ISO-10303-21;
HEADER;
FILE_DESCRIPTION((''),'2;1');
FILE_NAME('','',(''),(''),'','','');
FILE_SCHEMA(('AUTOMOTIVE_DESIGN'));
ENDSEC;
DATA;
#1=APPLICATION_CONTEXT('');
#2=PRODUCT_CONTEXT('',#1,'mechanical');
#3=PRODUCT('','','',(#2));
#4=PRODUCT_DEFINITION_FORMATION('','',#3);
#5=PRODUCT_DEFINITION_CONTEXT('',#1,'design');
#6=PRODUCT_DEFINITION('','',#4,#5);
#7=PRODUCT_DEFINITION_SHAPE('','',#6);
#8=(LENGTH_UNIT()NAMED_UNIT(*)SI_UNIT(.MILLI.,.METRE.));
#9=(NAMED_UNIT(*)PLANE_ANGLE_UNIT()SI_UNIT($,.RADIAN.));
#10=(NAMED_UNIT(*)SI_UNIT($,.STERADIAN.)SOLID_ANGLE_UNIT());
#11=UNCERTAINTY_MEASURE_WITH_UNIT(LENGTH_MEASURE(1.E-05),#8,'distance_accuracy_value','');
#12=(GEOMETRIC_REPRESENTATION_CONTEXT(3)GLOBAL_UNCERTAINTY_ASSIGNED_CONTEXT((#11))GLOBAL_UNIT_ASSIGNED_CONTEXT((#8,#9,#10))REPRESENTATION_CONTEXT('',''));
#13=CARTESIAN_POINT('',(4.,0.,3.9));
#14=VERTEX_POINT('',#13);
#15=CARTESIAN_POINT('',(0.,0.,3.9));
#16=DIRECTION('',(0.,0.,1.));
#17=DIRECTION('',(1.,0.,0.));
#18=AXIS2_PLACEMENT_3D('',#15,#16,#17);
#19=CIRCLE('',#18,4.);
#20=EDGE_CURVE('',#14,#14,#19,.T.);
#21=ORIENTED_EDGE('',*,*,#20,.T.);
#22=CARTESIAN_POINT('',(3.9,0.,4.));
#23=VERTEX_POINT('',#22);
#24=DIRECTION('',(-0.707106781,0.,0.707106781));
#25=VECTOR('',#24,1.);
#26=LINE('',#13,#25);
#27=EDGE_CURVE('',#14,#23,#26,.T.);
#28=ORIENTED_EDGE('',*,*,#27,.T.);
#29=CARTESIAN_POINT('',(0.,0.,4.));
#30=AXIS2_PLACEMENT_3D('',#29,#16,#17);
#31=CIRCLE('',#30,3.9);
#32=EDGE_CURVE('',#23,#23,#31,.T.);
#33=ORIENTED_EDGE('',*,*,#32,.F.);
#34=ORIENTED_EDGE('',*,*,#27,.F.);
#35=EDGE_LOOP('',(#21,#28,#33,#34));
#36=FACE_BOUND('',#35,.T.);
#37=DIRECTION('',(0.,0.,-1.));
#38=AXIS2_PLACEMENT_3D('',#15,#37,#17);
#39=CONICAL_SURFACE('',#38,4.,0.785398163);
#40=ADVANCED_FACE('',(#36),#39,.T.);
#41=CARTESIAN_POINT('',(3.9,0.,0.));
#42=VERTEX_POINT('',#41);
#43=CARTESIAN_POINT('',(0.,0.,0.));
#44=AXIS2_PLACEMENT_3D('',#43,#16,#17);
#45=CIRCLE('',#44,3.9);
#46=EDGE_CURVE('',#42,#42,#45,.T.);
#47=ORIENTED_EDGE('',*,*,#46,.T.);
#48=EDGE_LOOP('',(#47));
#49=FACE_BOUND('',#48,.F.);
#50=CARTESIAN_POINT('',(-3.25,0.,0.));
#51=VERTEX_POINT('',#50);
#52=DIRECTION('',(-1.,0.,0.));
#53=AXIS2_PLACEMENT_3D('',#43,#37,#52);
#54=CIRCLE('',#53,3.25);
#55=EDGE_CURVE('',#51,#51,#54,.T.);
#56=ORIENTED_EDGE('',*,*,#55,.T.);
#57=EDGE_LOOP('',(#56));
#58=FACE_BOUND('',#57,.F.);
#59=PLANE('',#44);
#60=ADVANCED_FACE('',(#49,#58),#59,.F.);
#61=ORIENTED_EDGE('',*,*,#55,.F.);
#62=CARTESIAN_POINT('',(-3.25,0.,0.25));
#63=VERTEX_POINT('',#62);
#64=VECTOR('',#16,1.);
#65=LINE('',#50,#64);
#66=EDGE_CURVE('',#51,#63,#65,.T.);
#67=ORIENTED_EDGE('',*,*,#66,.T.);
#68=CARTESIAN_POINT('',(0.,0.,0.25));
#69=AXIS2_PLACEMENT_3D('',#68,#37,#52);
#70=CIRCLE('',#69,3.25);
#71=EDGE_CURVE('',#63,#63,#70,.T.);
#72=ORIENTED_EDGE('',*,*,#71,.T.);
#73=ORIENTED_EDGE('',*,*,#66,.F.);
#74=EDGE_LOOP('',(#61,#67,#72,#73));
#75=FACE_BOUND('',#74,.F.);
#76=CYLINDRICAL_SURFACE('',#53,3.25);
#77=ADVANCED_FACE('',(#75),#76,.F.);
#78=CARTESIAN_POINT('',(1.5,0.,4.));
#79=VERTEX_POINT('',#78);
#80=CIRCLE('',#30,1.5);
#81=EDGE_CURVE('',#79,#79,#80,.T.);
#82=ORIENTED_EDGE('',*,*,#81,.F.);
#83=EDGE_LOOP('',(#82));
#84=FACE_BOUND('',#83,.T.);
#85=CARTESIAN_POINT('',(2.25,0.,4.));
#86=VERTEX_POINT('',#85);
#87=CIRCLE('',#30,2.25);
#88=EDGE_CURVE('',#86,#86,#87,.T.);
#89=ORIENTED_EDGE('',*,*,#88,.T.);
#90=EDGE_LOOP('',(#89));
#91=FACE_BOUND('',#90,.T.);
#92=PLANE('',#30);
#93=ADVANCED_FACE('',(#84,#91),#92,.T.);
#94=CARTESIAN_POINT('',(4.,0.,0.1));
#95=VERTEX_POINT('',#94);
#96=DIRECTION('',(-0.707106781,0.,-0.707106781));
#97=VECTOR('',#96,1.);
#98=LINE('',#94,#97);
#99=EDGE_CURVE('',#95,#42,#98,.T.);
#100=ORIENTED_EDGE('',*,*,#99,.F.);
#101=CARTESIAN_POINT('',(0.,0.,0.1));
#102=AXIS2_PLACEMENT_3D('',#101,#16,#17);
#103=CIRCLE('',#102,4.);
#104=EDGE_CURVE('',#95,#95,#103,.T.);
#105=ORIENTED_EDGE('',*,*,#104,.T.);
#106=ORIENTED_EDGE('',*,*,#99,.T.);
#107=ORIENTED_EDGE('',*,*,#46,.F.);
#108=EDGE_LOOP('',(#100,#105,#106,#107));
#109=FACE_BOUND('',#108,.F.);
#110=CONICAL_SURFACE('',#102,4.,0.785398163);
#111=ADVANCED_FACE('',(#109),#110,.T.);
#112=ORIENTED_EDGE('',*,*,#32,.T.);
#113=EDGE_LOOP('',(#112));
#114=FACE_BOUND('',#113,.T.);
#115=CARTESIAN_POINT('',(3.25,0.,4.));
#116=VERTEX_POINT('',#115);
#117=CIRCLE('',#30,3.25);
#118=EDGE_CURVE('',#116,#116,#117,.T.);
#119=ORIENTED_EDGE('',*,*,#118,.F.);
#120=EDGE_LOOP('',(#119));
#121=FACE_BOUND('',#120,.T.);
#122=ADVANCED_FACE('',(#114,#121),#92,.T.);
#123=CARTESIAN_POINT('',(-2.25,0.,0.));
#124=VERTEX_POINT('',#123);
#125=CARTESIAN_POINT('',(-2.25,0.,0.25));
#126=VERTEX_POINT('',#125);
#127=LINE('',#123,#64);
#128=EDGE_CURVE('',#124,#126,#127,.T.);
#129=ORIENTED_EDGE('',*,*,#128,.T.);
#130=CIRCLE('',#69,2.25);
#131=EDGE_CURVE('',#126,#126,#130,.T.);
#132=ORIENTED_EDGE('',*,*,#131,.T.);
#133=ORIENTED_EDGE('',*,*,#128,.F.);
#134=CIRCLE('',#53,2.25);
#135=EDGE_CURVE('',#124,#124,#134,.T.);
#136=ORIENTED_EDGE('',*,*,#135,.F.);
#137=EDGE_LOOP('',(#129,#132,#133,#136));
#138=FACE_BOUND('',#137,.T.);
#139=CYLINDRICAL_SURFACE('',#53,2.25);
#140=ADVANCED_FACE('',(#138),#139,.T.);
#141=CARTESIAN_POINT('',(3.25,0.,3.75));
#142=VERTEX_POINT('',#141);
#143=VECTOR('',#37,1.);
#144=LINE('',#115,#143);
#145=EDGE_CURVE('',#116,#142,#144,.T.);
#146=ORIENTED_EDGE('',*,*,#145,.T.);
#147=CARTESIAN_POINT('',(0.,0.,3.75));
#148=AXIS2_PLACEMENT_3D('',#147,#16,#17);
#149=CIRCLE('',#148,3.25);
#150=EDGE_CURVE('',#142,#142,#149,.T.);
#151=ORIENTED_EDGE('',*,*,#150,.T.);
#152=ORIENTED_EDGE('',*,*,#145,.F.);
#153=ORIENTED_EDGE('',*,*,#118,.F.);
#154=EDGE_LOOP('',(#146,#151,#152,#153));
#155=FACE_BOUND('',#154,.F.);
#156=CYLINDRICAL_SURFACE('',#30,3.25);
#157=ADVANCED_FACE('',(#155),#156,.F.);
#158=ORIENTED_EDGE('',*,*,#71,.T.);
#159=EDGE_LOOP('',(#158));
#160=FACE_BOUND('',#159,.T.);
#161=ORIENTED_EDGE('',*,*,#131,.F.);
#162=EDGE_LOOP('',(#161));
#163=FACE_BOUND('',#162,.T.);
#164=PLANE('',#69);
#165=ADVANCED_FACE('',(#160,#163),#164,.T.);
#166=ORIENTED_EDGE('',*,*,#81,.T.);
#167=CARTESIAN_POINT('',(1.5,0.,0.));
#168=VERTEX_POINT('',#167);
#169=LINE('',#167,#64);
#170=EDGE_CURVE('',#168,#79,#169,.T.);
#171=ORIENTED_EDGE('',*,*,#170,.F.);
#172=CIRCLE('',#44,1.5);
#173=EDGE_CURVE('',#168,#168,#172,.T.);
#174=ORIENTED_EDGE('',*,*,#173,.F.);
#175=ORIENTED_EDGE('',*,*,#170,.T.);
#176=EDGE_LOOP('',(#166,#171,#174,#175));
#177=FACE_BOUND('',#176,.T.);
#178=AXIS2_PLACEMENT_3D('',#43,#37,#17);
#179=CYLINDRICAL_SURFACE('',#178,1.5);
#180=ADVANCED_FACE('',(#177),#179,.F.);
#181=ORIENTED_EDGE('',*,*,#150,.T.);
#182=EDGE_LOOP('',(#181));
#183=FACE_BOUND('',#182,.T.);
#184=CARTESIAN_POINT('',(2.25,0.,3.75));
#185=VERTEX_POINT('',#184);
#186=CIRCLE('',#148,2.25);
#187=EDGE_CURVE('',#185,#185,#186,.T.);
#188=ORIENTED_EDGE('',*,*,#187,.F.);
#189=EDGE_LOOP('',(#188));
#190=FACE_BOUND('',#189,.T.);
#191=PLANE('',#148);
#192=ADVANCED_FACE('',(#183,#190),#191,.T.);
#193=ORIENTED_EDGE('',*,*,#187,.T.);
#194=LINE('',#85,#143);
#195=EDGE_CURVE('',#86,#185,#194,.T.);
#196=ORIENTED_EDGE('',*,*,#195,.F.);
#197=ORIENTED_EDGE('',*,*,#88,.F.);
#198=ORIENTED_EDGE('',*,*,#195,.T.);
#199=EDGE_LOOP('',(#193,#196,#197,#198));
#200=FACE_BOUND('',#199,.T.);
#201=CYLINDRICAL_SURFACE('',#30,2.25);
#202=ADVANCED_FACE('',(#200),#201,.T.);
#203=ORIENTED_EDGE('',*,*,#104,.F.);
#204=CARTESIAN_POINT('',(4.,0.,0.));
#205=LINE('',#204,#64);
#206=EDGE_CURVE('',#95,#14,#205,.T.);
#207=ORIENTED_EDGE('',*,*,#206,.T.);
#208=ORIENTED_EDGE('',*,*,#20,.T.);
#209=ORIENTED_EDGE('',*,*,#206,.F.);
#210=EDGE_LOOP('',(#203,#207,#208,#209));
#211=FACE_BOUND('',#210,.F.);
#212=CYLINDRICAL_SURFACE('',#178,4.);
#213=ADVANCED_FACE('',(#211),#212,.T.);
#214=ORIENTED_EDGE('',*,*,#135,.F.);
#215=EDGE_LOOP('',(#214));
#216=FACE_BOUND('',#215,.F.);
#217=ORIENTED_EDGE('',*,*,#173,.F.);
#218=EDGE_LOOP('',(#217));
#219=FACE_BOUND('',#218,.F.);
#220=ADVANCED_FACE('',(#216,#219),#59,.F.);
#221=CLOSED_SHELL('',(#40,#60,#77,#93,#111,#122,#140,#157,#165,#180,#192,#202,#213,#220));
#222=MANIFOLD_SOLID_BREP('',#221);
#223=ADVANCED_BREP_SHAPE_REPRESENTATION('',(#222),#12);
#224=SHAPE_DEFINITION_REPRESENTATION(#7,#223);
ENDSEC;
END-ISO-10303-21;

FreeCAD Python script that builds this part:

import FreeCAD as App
import Part
import Sketcher
from FreeCAD import Vector
Q = App.Units.Quantity


def edges_at(feature, points):
    """Names of the edges that pass closest to the given points."""
    edges = feature.Shape.Edges
    near = lambda p: min(range(len(edges)), key=lambda i: edges[i].distToShape(Part.Vertex(*p))[0])
    return sorted({f"Edge{near(p) + 1}" for p in points})

doc = App.newDocument("Part")
body = doc.addObject("PartDesign::Body", "Body")

sketch1 = body.newObject("Sketcher::SketchObject", "Sketch")
sketch1.AttachmentSupport = (doc.getObject("XY_Plane"), [""])
sketch1.MapMode = "FlatFace"
sketch1.addGeometry([
    Part.Circle(Vector(0, 0, 0), Vector(0, 0, 1), 4),
    Part.Circle(Vector(0, 0, 0), Vector(0, 0, 1), 1.5),
], False)
sketch1.addConstraint([
    Sketcher.Constraint("Coincident", 0, 3, -1, 1),
    Sketcher.Constraint("Coincident", 1, 3, -1, 1),
    Sketcher.Constraint("Diameter", 0, Q("8 mm")),
    Sketcher.Constraint("Diameter", 1, Q("3 mm")),
])
pad1 = body.newObject("PartDesign::Pad", "Pad")
pad1.Profile = sketch1
pad1.Length = 4

sketch2 = body.newObject("Sketcher::SketchObject", "Sketch001")
sketch2.AttachmentSupport = (doc.getObject("XY_Plane"), [""])
sketch2.MapMode = "FlatFace"
sketch2.AttachmentOffset = App.Placement(Vector(0, 0, 4), App.Rotation())
sketch2.addGeometry([
    Part.Circle(Vector(0, 0, 0), Vector(0, 0, 1), 3.25),
    Part.Circle(Vector(0, 0, 0), Vector(0, 0, 1), 2.25),
], False)
sketch2.addConstraint([
    Sketcher.Constraint("Coincident", 0, 3, -1, 1),
    Sketcher.Constraint("Coincident", 1, 3, -1, 1),
    Sketcher.Constraint("Diameter", 0, Q("6.5 mm")),
    Sketcher.Constraint("Diameter", 1, Q("4.5 mm")),
])
pocket1 = body.newObject("PartDesign::Pocket", "Pocket")
pocket1.Profile = sketch2
pocket1.Length = 0.25

sketch3 = body.newObject("Sketcher::SketchObject", "Sketch002")
sketch3.AttachmentSupport = (doc.getObject("XY_Plane"), [""])
sketch3.MapMode = "FlatFace"
sketch3.addGeometry([
    Part.Circle(Vector(0, 0, 0), Vector(0, 0, 1), 3.25),
    Part.Circle(Vector(0, 0, 0), Vector(0, 0, 1), 2.25),
], False)
sketch3.addConstraint([
    Sketcher.Constraint("Coincident", 0, 3, -1, 1),
    Sketcher.Constraint("Coincident", 1, 3, -1, 1),
    Sketcher.Constraint("Diameter", 0, Q("6.5 mm")),
    Sketcher.Constraint("Diameter", 1, Q("4.5 mm")),
])
pocket2 = body.newObject("PartDesign::Pocket", "Pocket001")
pocket2.Profile = sketch3
pocket2.Length = 0.25
pocket2.Reversed = True
doc.recompute()

chamfer = body.newObject("PartDesign::Chamfer", "Chamfer")
chamfer.Base = (pocket2, edges_at(pocket2, [(-4, 0, 4), (-4, 0, 0)]))
chamfer.Size = 0.1

doc.recompute()
